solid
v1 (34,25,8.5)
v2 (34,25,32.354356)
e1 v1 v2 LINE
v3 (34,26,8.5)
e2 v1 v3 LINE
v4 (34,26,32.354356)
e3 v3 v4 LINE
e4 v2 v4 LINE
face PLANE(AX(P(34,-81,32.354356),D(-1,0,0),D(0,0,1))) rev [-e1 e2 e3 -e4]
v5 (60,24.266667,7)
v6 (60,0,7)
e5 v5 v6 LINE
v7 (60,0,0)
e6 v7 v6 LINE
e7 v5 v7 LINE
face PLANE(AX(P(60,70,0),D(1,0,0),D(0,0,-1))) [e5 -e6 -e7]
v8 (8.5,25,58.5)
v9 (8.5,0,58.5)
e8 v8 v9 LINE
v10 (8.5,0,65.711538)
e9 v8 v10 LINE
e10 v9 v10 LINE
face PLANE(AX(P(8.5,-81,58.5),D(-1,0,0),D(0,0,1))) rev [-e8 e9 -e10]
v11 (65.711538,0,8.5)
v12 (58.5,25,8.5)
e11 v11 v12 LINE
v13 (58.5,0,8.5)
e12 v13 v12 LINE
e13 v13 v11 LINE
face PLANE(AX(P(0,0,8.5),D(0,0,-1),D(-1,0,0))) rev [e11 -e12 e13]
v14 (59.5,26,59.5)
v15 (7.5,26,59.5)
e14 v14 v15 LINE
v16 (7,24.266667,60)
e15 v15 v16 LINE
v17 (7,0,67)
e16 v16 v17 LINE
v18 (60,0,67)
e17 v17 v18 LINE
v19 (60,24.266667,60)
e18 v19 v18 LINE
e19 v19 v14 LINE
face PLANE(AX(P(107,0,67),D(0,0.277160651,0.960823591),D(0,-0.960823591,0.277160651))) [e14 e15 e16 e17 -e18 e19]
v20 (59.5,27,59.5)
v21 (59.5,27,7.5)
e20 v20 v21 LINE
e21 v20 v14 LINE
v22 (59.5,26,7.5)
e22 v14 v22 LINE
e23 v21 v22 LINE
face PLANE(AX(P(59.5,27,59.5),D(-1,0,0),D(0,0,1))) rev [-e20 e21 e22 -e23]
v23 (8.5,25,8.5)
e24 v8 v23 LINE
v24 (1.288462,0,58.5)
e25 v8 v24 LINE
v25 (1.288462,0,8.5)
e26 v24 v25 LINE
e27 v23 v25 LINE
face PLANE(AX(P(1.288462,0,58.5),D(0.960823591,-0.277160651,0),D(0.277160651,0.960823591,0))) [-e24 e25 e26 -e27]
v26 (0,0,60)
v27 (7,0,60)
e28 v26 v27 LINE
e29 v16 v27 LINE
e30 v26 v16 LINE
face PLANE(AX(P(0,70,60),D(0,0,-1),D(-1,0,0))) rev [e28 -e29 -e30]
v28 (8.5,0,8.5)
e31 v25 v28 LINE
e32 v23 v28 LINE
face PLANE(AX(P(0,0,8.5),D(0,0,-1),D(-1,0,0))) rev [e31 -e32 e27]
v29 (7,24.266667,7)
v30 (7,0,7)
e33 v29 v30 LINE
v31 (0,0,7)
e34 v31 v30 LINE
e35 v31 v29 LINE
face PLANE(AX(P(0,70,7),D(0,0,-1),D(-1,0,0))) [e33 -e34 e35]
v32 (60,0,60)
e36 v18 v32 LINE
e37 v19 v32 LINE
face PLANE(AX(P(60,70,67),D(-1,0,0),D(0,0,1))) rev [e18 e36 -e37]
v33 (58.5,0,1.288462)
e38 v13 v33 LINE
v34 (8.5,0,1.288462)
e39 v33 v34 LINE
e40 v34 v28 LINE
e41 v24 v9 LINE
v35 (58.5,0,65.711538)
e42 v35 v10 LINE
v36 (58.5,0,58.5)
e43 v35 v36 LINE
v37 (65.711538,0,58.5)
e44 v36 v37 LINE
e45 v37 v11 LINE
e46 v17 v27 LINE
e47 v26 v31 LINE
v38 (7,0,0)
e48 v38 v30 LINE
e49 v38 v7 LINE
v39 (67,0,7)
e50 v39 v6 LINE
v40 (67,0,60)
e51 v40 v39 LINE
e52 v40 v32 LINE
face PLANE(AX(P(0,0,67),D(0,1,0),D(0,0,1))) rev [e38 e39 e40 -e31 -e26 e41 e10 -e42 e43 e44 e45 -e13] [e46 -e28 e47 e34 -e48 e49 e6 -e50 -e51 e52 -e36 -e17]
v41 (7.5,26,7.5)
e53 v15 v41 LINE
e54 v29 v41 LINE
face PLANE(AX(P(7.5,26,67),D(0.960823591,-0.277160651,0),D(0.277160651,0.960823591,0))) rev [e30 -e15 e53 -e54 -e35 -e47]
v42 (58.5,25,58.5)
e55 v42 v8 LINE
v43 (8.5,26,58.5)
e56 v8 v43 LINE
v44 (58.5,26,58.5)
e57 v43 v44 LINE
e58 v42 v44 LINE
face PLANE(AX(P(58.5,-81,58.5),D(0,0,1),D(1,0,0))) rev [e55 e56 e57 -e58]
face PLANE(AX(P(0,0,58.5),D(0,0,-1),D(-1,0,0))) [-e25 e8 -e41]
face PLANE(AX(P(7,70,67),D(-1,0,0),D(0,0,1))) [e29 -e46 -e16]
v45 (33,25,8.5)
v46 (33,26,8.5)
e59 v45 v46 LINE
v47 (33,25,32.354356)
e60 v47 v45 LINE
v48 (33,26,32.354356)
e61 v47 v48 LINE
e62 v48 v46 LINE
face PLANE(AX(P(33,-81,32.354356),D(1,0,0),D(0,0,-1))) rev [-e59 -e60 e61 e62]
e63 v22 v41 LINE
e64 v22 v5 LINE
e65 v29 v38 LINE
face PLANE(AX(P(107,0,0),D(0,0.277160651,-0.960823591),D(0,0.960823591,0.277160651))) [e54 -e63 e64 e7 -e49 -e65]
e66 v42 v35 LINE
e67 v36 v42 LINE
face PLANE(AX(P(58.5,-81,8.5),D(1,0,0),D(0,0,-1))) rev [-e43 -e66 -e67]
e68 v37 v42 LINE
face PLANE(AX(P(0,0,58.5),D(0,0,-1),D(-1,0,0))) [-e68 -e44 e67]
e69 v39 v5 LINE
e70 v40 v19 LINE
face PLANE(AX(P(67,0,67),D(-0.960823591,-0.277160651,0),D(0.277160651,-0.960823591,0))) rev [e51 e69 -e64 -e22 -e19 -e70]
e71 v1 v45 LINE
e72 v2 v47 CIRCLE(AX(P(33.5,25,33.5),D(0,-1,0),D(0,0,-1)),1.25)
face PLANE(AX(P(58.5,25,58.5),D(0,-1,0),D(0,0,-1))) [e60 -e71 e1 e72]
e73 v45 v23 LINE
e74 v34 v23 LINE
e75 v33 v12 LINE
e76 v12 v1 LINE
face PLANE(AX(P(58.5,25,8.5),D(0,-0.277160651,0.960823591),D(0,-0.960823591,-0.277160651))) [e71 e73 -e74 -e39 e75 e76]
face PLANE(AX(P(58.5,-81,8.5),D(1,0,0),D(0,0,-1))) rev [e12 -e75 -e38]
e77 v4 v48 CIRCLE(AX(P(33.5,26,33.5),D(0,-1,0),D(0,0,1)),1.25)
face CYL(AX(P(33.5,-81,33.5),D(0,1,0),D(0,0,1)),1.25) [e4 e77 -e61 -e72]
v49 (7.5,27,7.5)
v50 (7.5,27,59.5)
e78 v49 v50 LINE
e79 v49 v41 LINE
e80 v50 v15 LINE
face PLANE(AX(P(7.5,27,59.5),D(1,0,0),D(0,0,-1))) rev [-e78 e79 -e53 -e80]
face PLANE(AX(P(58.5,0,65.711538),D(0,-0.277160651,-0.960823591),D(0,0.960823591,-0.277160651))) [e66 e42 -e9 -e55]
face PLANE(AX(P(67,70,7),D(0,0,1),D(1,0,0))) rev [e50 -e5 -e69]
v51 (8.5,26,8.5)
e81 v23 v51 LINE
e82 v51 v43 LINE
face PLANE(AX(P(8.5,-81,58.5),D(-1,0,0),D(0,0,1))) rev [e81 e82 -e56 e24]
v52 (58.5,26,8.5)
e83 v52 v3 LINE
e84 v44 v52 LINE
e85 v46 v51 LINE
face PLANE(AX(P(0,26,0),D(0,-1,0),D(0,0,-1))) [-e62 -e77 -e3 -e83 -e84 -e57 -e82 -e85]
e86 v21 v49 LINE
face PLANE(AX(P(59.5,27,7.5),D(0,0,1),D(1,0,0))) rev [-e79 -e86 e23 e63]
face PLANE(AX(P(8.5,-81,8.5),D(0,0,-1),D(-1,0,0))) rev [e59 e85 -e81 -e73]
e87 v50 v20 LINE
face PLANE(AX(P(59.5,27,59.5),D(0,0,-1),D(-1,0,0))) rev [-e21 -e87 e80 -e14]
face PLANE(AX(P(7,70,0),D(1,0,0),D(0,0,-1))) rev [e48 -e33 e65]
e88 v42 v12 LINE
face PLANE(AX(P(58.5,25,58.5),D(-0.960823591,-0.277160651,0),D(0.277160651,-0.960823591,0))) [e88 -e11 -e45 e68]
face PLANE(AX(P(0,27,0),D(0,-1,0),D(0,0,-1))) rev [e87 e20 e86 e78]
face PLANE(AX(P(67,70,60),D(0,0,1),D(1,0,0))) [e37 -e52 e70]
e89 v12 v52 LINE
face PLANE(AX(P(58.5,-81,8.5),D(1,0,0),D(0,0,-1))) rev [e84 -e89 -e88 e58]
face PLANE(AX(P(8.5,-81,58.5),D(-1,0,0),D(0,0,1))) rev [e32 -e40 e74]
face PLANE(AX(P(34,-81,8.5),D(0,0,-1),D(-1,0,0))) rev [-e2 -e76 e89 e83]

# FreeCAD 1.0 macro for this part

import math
import FreeCAD as App
import Part
import Sketcher

doc = App.newDocument("Part")
params = doc.addObject("Spreadsheet::Sheet", "Params")
for row, (alias, value) in enumerate([
    ("sketch1_width", "67 mm"),
    ("sketch1_width2", "52 mm"),
    ("pad1_length", "67 mm"),
    ("sketch2_width", "26 mm"),
    ("sketch2_height", "7.5 mm"),
    ("pocket1_length", "107 mm"),
    ("sketch3_width", "50 mm"),
    ("sketch3_radius", "1.25 mm"),
    ("sketch3_width2", "24.5 mm"),
    ("pocket2_length", "107 mm"),
    ("sketch4_height", "50 mm"),
    ("pocket3_length", "25 mm"),
    ("pocket3_length2", "25 mm"),
    ("sketch5_width", "50 mm"),
    ("pocket4_length", "25 mm"),
    ("pocket4_length2", "25 mm"),
    ("sketch6_width", "7 mm"),
    ("pocket5_length", "70 mm"),
    ("sketch7_width", "52 mm"),
    ("pad2_length", "1 mm"),
], start=1):
    params.set(f"A{row}", alias)
    params.set(f"B{row}", "=" + value)
    params.setAlias(f"B{row}", alias)

body = doc.addObject("PartDesign::Body", "Body")

sketch1 = body.newObject("Sketcher::SketchObject", "Sketch")
sketch1.AttachmentSupport = (doc.getObject("XY_Plane"), [""])
sketch1.MapMode = "FlatFace"
sketch1.addGeometry(Part.LineSegment(App.Vector(0, 0, 0), App.Vector(67, 0, 0)), False)
sketch1.addGeometry(Part.LineSegment(App.Vector(67, 0, 0), App.Vector(60, 26, 0)), False)
sketch1.addGeometry(Part.LineSegment(App.Vector(60, 26, 0), App.Vector(8, 26, 0)), False)
sketch1.addGeometry(Part.LineSegment(App.Vector(8, 26, 0), App.Vector(0, 0, 0)), False)
sketch1.addConstraint(Sketcher.Constraint("Coincident", 0, 2, 1, 1))
sketch1.addConstraint(Sketcher.Constraint("Coincident", 1, 2, 2, 1))
sketch1.addConstraint(Sketcher.Constraint("Coincident", 2, 2, 3, 1))
sketch1.addConstraint(Sketcher.Constraint("Coincident", 3, 2, 0, 1))
sketch1.addConstraint(Sketcher.Constraint("Horizontal", 0))
sketch1.addConstraint(Sketcher.Constraint("Horizontal", 2))
sketch1.addConstraint(Sketcher.Constraint("Coincident", 3, 2, -1, 1))
sketch1.addConstraint(Sketcher.Constraint("Equal", 1, 3))
sketch1.addConstraint(Sketcher.Constraint("DistanceX", 0, 1, 0, 2, 67.0))
sketch1.addConstraint(Sketcher.Constraint("DistanceX", 2, 2, 2, 1, 52.0))
sketch1.addConstraint(Sketcher.Constraint("DistanceY", -1, 1, 1, 2, 26.0))
sketch1.setExpression("Constraints[8]", "Params.sketch1_width")
sketch1.setExpression("Constraints[9]", "Params.sketch1_width2")
pad1 = body.newObject("PartDesign::Pad", "Pad")
pad1.Profile = sketch1
pad1.setExpression("Length", "Params.pad1_length")

sketch2 = body.newObject("Sketcher::SketchObject", "Sketch001")
sketch2.AttachmentSupport = (doc.getObject("YZ_Plane"), [""])
sketch2.MapMode = "FlatFace"
sketch2.addGeometry(Part.LineSegment(App.Vector(0, 67, 0), App.Vector(26, 60, 0)), False)
sketch2.addGeometry(Part.LineSegment(App.Vector(26, 60, 0), App.Vector(26, 67, 0)), False)
sketch2.addGeometry(Part.LineSegment(App.Vector(26, 67, 0), App.Vector(0, 67, 0)), False)
sketch2.addGeometry(Part.LineSegment(App.Vector(26, 8, 0), App.Vector(0, 0, 0)), False)
sketch2.addGeometry(Part.LineSegment(App.Vector(0, 0, 0), App.Vector(26, 0, 0)), False)
sketch2.addGeometry(Part.LineSegment(App.Vector(26, 0, 0), App.Vector(26, 8, 0)), False)
sketch2.addConstraint(Sketcher.Constraint("Coincident", 0, 2, 1, 1))
sketch2.addConstraint(Sketcher.Constraint("Coincident", 1, 2, 2, 1))
sketch2.addConstraint(Sketcher.Constraint("Coincident", 2, 2, 0, 1))
sketch2.addConstraint(Sketcher.Constraint("Coincident", 3, 2, 4, 1))
sketch2.addConstraint(Sketcher.Constraint("Coincident", 4, 2, 5, 1))
sketch2.addConstraint(Sketcher.Constraint("Coincident", 5, 2, 3, 1))
sketch2.addConstraint(Sketcher.Constraint("Vertical", 1))
sketch2.addConstraint(Sketcher.Constraint("Horizontal", 2))
sketch2.addConstraint(Sketcher.Constraint("Horizontal", 4))
sketch2.addConstraint(Sketcher.Constraint("Vertical", 5))
sketch2.addConstraint(Sketcher.Constraint("Coincident", 3, 2, -1, 1))
sketch2.addConstraint(Sketcher.Constraint("PointOnObject", 2, 2, -2))
sketch2.addConstraint(Sketcher.Constraint("Vertical", 1, 2, 4, 2))
sketch2.addConstraint(Sketcher.Constraint("Equal", 1, 5))
sketch2.addConstraint(Sketcher.Constraint("DistanceX", 2, 2, 2, 1, 26.0))
sketch2.addConstraint(Sketcher.Constraint("DistanceY", 1, 1, 1, 2, 7.5))
sketch2.addConstraint(Sketcher.Constraint("DistanceY", -1, 1, 1, 2, 67.0))
sketch2.setExpression("Constraints[14]", "Params.sketch2_width")
sketch2.setExpression("Constraints[15]", "Params.sketch2_height")
pocket1 = body.newObject("PartDesign::Pocket", "Pocket")
pocket1.Profile = sketch2
pocket1.setExpression("Length", "Params.pocket1_length")
pocket1.Reversed = True

sketch3 = body.newObject("Sketcher::SketchObject", "Sketch002")
sketch3.AttachmentSupport = (doc.getObject("XZ_Plane"), [""])
sketch3.MapMode = "FlatFace"
sketch3.AttachmentOffset = App.Placement(App.Vector(0, 0, -26), App.Rotation())
sketch3.addGeometry(Part.LineSegment(App.Vector(33, 32.4, 0), App.Vector(33, 8.5, 0)), False)
sketch3.addGeometry(Part.LineSegment(App.Vector(33, 8.5, 0), App.Vector(8.5, 8.5, 0)), False)
sketch3.addGeometry(Part.LineSegment(App.Vector(8.5, 8.5, 0), App.Vector(8.5, 58.5, 0)), False)
sketch3.addGeometry(Part.LineSegment(App.Vector(8.5, 58.5, 0), App.Vector(58.5, 58.5, 0)), False)
sketch3.addGeometry(Part.LineSegment(App.Vector(58.5, 58.5, 0), App.Vector(58.5, 8.5, 0)), False)
sketch3.addGeometry(Part.LineSegment(App.Vector(58.5, 8.5, 0), App.Vector(34, 8.5, 0)), False)
sketch3.addGeometry(Part.LineSegment(App.Vector(34, 8.5, 0), App.Vector(34, 32.4, 0)), False)
sketch3.addGeometry(Part.ArcOfCircle(Part.Circle(App.Vector(33.5, 33.5, 0), App.Vector(0, 0, 1), 1.2), math.radians(-66), math.radians(246)), False)
sketch3.addConstraint(Sketcher.Constraint("Coincident", 0, 2, 1, 1))
sketch3.addConstraint(Sketcher.Constraint("Coincident", 1, 2, 2, 1))
sketch3.addConstraint(Sketcher.Constraint("Coincident", 2, 2, 3, 1))
sketch3.addConstraint(Sketcher.Constraint("Coincident", 3, 2, 4, 1))
sketch3.addConstraint(Sketcher.Constraint("Coincident", 4, 2, 5, 1))
sketch3.addConstraint(Sketcher.Constraint("Coincident", 5, 2, 6, 1))
sketch3.addConstraint(Sketcher.Constraint("Coincident", 6, 2, 7, 1))
sketch3.addConstraint(Sketcher.Constraint("Coincident", 7, 2, 0, 1))
sketch3.addConstraint(Sketcher.Constraint("Vertical", 0))
sketch3.addConstraint(Sketcher.Constraint("Horizontal", 1))
sketch3.addConstraint(Sketcher.Constraint("Vertical", 2))
sketch3.addConstraint(Sketcher.Constraint("Horizontal", 3))
sketch3.addConstraint(Sketcher.Constraint("Vertical", 4))
sketch3.addConstraint(Sketcher.Constraint("Horizontal", 5))
sketch3.addConstraint(Sketcher.Constraint("Vertical", 6))
sketch3.addConstraint(Sketcher.Constraint("Horizontal", 1, 2, 4, 2))
sketch3.addConstraint(Sketcher.Constraint("Horizontal", 6, 2, 7, 2))
sketch3.addConstraint(Sketcher.Constraint("Equal", 1, 5))
sketch3.addConstraint(Sketcher.Constraint("Equal", 3, 2))
sketch3.addConstraint(Sketcher.Constraint("DistanceX", 3, 1, 3, 2, 50.0))
sketch3.addConstraint(Sketcher.Constraint("Radius", 7, 1.25))
sketch3.addConstraint(Sketcher.Constraint("DistanceX", 1, 2, 1, 1, 24.5))
sketch3.addConstraint(Sketcher.Constraint("DistanceX", -1, 1, 0, 2, 33.0))
sketch3.addConstraint(Sketcher.Constraint("DistanceY", 0, 2, 7, 3, 25.0))
sketch3.addConstraint(Sketcher.Constraint("DistanceY", -1, 1, 7, 3, 33.5))
sketch3.setExpression("Constraints[19]", "Params.sketch3_width")
sketch3.setExpression("Constraints[20]", "Params.sketch3_radius")
sketch3.setExpression("Constraints[21]", "Params.sketch3_width2")
pocket2 = body.newObject("PartDesign::Pocket", "Pocket001")
pocket2.Profile = sketch3
pocket2.setExpression("Length", "Params.pocket2_length")
pocket2.Reversed = True

sketch4 = body.newObject("Sketcher::SketchObject", "Sketch003")
sketch4.AttachmentSupport = (doc.getObject("YZ_Plane"), [""])
sketch4.MapMode = "FlatFace"
sketch4.AttachmentOffset = App.Placement(App.Vector(0, 0, 33.5), App.Rotation())
sketch4.addGeometry(Part.LineSegment(App.Vector(25, 58, 0), App.Vector(0, 66, 0)), False)
sketch4.addGeometry(Part.LineSegment(App.Vector(0, 66, 0), App.Vector(0, 1, 0)), False)
sketch4.addGeometry(Part.LineSegment(App.Vector(0, 1, 0), App.Vector(25, 8, 0)), False)
sketch4.addGeometry(Part.LineSegment(App.Vector(25, 8, 0), App.Vector(25, 58, 0)), False)
sketch4.addConstraint(Sketcher.Constraint("Coincident", 0, 2, 1, 1))
sketch4.addConstraint(Sketcher.Constraint("Coincident", 1, 2, 2, 1))
sketch4.addConstraint(Sketcher.Constraint("Coincident", 2, 2, 3, 1))
sketch4.addConstraint(Sketcher.Constraint("Coincident", 3, 2, 0, 1))
sketch4.addConstraint(Sketcher.Constraint("Vertical", 1))
sketch4.addConstraint(Sketcher.Constraint("Vertical", 3))
sketch4.addConstraint(Sketcher.Constraint("PointOnObject", 0, 2, -2))
sketch4.addConstraint(Sketcher.Constraint("Equal", 0, 2))
sketch4.addConstraint(Sketcher.Constraint("DistanceY", 3, 1, 3, 2, 50.0))
sketch4.addConstraint(Sketcher.Constraint("DistanceX", -1, 1, 2, 2, 25.0))
sketch4.addConstraint(Sketcher.Constraint("DistanceY", -1, 1, 2, 2, 8.5))
sketch4.addConstraint(Sketcher.Constraint("DistanceY", 1, 2, 1, 1, 64.423077))
sketch4.setExpression("Constraints[8]", "Params.sketch4_height")
pocket3 = body.newObject("PartDesign::Pocket", "Pocket002")
pocket3.Profile = sketch4
pocket3.Type = "TwoLengths"
pocket3.setExpression("Length", "Params.pocket3_length")
pocket3.setExpression("Length2", "Params.pocket3_length2")
pocket3.Reversed = True

sketch5 = body.newObject("Sketcher::SketchObject", "Sketch004")
sketch5.AttachmentSupport = (doc.getObject("XY_Plane"), [""])
sketch5.MapMode = "FlatFace"
sketch5.AttachmentOffset = App.Placement(App.Vector(0, 0, 33.5), App.Rotation())
sketch5.addGeometry(Part.LineSegment(App.Vector(8, 25, 0), App.Vector(1, 0, 0)), False)
sketch5.addGeometry(Part.LineSegment(App.Vector(1, 0, 0), App.Vector(66, 0, 0)), False)
sketch5.addGeometry(Part.LineSegment(App.Vector(66, 0, 0), App.Vector(58, 25, 0)), False)
sketch5.addGeometry(Part.LineSegment(App.Vector(58, 25, 0), App.Vector(8, 25, 0)), False)
sketch5.addConstraint(Sketcher.Constraint("Coincident", 0, 2, 1, 1))
sketch5.addConstraint(Sketcher.Constraint("Coincident", 1, 2, 2, 1))
sketch5.addConstraint(Sketcher.Constraint("Coincident", 2, 2, 3, 1))
sketch5.addConstraint(Sketcher.Constraint("Coincident", 3, 2, 0, 1))
sketch5.addConstraint(Sketcher.Constraint("Horizontal", 1))
sketch5.addConstraint(Sketcher.Constraint("Horizontal", 3))
sketch5.addConstraint(Sketcher.Constraint("PointOnObject", 0, 2, -1))
sketch5.addConstraint(Sketcher.Constraint("Equal", 0, 2))
sketch5.addConstraint(Sketcher.Constraint("DistanceX", 3, 2, 3, 1, 50.0))
sketch5.addConstraint(Sketcher.Constraint("DistanceY", -1, 1, 2, 2, 25.0))
sketch5.addConstraint(Sketcher.Constraint("DistanceX", -1, 1, 2, 2, 58.5))
sketch5.addConstraint(Sketcher.Constraint("DistanceX", 1, 1, 1, 2, 64.423077))
sketch5.setExpression("Constraints[8]", "Params.sketch5_width")
pocket4 = body.newObject("PartDesign::Pocket", "Pocket003")
pocket4.Profile = sketch5
pocket4.Type = "TwoLengths"
pocket4.setExpression("Length", "Params.pocket4_length")
pocket4.setExpression("Length2", "Params.pocket4_length2")
pocket4.Reversed = True

sketch6 = body.newObject("Sketcher::SketchObject", "Sketch005")
sketch6.AttachmentSupport = (doc.getObject("XZ_Plane"), [""])
sketch6.MapMode = "FlatFace"
sketch6.addGeometry(Part.LineSegment(App.Vector(60, 7, 0), App.Vector(60, 0, 0)), False)
sketch6.addGeometry(Part.LineSegment(App.Vector(60, 0, 0), App.Vector(67, 0, 0)), False)
sketch6.addGeometry(Part.LineSegment(App.Vector(67, 0, 0), App.Vector(67, 7, 0)), False)
sketch6.addGeometry(Part.LineSegment(App.Vector(67, 7, 0), App.Vector(60, 7, 0)), False)
sketch6.addGeometry(Part.LineSegment(App.Vector(60, 67, 0), App.Vector(60, 60, 0)), False)
sketch6.addGeometry(Part.LineSegment(App.Vector(60, 60, 0), App.Vector(67, 60, 0)), False)
sketch6.addGeometry(Part.LineSegment(App.Vector(67, 60, 0), App.Vector(67, 67, 0)), False)
sketch6.addGeometry(Part.LineSegment(App.Vector(67, 67, 0), App.Vector(60, 67, 0)), False)
sketch6.addGeometry(Part.LineSegment(App.Vector(0, 7, 0), App.Vector(0, 0, 0)), False)
sketch6.addGeometry(Part.LineSegment(App.Vector(0, 0, 0), App.Vector(7, 0, 0)), False)
sketch6.addGeometry(Part.LineSegment(App.Vector(7, 0, 0), App.Vector(7, 7, 0)), False)
sketch6.addGeometry(Part.LineSegment(App.Vector(7, 7, 0), App.Vector(0, 7, 0)), False)
sketch6.addGeometry(Part.LineSegment(App.Vector(0, 67, 0), App.Vector(0, 60, 0)), False)
sketch6.addGeometry(Part.LineSegment(App.Vector(0, 60, 0), App.Vector(7, 60, 0)), False)
sketch6.addGeometry(Part.LineSegment(App.Vector(7, 60, 0), App.Vector(7, 67, 0)), False)
sketch6.addGeometry(Part.LineSegment(App.Vector(7, 67, 0), App.Vector(0, 67, 0)), False)
sketch6.addConstraint(Sketcher.Constraint("Coincident", 0, 2, 1, 1))
sketch6.addConstraint(Sketcher.Constraint("Coincident", 1, 2, 2, 1))
sketch6.addConstraint(Sketcher.Constraint("Coincident", 2, 2, 3, 1))
sketch6.addConstraint(Sketcher.Constraint("Coincident", 3, 2, 0, 1))
sketch6.addConstraint(Sketcher.Constraint("Coincident", 4, 2, 5, 1))
sketch6.addConstraint(Sketcher.Constraint("Coincident", 5, 2, 6, 1))
sketch6.addConstraint(Sketcher.Constraint("Coincident", 6, 2, 7, 1))
sketch6.addConstraint(Sketcher.Constraint("Coincident", 7, 2, 4, 1))
sketch6.addConstraint(Sketcher.Constraint("Coincident", 8, 2, 9, 1))
sketch6.addConstraint(Sketcher.Constraint("Coincident", 9, 2, 10, 1))
sketch6.addConstraint(Sketcher.Constraint("Coincident", 10, 2, 11, 1))
sketch6.addConstraint(Sketcher.Constraint("Coincident", 11, 2, 8, 1))
sketch6.addConstraint(Sketcher.Constraint("Coincident", 12, 2, 13, 1))
sketch6.addConstraint(Sketcher.Constraint("Coincident", 13, 2, 14, 1))
sketch6.addConstraint(Sketcher.Constraint("Coincident", 14, 2, 15, 1))
sketch6.addConstraint(Sketcher.Constraint("Coincident", 15, 2, 12, 1))
sketch6.addConstraint(Sketcher.Constraint("Vertical", 0))
sketch6.addConstraint(Sketcher.Constraint("Horizontal", 1))
sketch6.addConstraint(Sketcher.Constraint("Vertical", 2))
sketch6.addConstraint(Sketcher.Constraint("Horizontal", 3))
sketch6.addConstraint(Sketcher.Constraint("Vertical", 4))
sketch6.addConstraint(Sketcher.Constraint("Horizontal", 5))
sketch6.addConstraint(Sketcher.Constraint("Vertical", 6))
sketch6.addConstraint(Sketcher.Constraint("Horizontal", 7))
sketch6.addConstraint(Sketcher.Constraint("Vertical", 8))
sketch6.addConstraint(Sketcher.Constraint("Horizontal", 9))
sketch6.addConstraint(Sketcher.Constraint("Vertical", 10))
sketch6.addConstraint(Sketcher.Constraint("Horizontal", 11))
sketch6.addConstraint(Sketcher.Constraint("Vertical", 12))
sketch6.addConstraint(Sketcher.Constraint("Horizontal", 13))
sketch6.addConstraint(Sketcher.Constraint("Vertical", 14))
sketch6.addConstraint(Sketcher.Constraint("Horizontal", 15))
sketch6.addConstraint(Sketcher.Constraint("Coincident", 8, 2, -1, 1))
sketch6.addConstraint(Sketcher.Constraint("PointOnObject", 0, 2, -1))
sketch6.addConstraint(Sketcher.Constraint("PointOnObject", 12, 2, -2))
sketch6.addConstraint(Sketcher.Constraint("Horizontal", 3, 2, 10, 2))
sketch6.addConstraint(Sketcher.Constraint("Horizontal", 5, 2, 12, 2))
sketch6.addConstraint(Sketcher.Constraint("Horizontal", 7, 2, 14, 2))
sketch6.addConstraint(Sketcher.Constraint("Vertical", 3, 2, 4, 2))
sketch6.addConstraint(Sketcher.Constraint("Vertical", 2, 2, 5, 2))
sketch6.addConstraint(Sketcher.Constraint("Vertical", 10, 2, 13, 2))
sketch6.addConstraint(Sketcher.Constraint("Equal", 7, 9))
sketch6.addConstraint(Sketcher.Constraint("Equal", 15, 0))
sketch6.addConstraint(Sketcher.Constraint("Equal", 2, 4))
sketch6.addConstraint(Sketcher.Constraint("DistanceX", 1, 1, 1, 2, 7.0))
sketch6.addConstraint(Sketcher.Constraint("DistanceX", -1, 1, 0, 2, 60.0))
sketch6.addConstraint(Sketcher.Constraint("DistanceY", -1, 1, 4, 2, 60.0))
sketch6.setExpression("Constraints[44]", "Params.sketch6_width")
pocket5 = body.newObject("PartDesign::Pocket", "Pocket004")
pocket5.Profile = sketch6
pocket5.setExpression("Length", "Params.pocket5_length")

sketch7 = body.newObject("Sketcher::SketchObject", "Sketch006")
sketch7.AttachmentSupport = (doc.getObject("XZ_Plane"), [""])
sketch7.MapMode = "FlatFace"
sketch7.AttachmentOffset = App.Placement(App.Vector(0, 0, -26), App.Rotation())
sketch7.addGeometry(Part.LineSegment(App.Vector(8, 8, 0), App.Vector(8, 60, 0)), False)
sketch7.addGeometry(Part.LineSegment(App.Vector(8, 60, 0), App.Vector(60, 60, 0)), False)
sketch7.addGeometry(Part.LineSegment(App.Vector(60, 60, 0), App.Vector(60, 8, 0)), False)
sketch7.addGeometry(Part.LineSegment(App.Vector(60, 8, 0), App.Vector(8, 8, 0)), False)
sketch7.addConstraint(Sketcher.Constraint("Coincident", 0, 2, 1, 1))
sketch7.addConstraint(Sketcher.Constraint("Coincident", 1, 2, 2, 1))
sketch7.addConstraint(Sketcher.Constraint("Coincident", 2, 2, 3, 1))
sketch7.addConstraint(Sketcher.Constraint("Coincident", 3, 2, 0, 1))
sketch7.addConstraint(Sketcher.Constraint("Vertical", 0))
sketch7.addConstraint(Sketcher.Constraint("Horizontal", 1))
sketch7.addConstraint(Sketcher.Constraint("Vertical", 2))
sketch7.addConstraint(Sketcher.Constraint("Horizontal", 3))
sketch7.addConstraint(Sketcher.Constraint("Equal", 3, 0))
sketch7.addConstraint(Sketcher.Constraint("DistanceX", 1, 1, 1, 2, 52.0))
sketch7.addConstraint(Sketcher.Constraint("DistanceX", -1, 1, 0, 2, 7.5))
sketch7.addConstraint(Sketcher.Constraint("DistanceY", -1, 1, 0, 2, 59.5))
sketch7.setExpression("Constraints[9]", "Params.sketch7_width")
pad2 = body.newObject("PartDesign::Pad", "Pad001")
pad2.Profile = sketch7
pad2.setExpression("Length", "Params.pad2_length")
pad2.Reversed = True

doc.recompute()
